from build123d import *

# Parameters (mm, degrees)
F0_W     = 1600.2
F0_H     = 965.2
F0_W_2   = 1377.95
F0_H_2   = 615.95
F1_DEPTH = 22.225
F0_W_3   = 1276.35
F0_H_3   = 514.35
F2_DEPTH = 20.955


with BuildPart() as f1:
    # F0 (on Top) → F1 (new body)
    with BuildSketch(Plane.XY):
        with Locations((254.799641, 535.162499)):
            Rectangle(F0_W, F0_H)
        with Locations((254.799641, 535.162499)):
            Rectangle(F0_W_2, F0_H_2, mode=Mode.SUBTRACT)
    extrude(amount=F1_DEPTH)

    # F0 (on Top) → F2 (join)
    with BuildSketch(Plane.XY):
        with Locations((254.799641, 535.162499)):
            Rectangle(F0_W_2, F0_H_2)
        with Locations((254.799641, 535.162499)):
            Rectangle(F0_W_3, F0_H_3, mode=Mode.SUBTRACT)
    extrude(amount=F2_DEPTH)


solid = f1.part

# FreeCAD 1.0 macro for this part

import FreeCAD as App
import Part
import Sketcher
from FreeCAD import Vector
Q = App.Units.Quantity

doc = App.newDocument("Part")
body = doc.addObject("PartDesign::Body", "Body")

sketch1 = doc.addObject("Sketcher::SketchObject", "Sketch")
body.addObject(sketch1)
sketch1.AttachmentSupport = (doc.XY_Plane, [""])
sketch1.MapMode = "FlatFace"
sketch1.addGeometry(Part.LineSegment(Vector(-545, 1018, 0), Vector(-545, 53, 0)), False)
sketch1.addGeometry(Part.LineSegment(Vector(-545, 53, 0), Vector(1055, 53, 0)), False)
sketch1.addGeometry(Part.LineSegment(Vector(1055, 53, 0), Vector(1055, 1018, 0)), False)
sketch1.addGeometry(Part.LineSegment(Vector(1055, 1018, 0), Vector(-545, 1018, 0)), False)
sketch1.addGeometry(Part.LineSegment(Vector(944, 227, 0), Vector(-434, 227, 0)), False)
sketch1.addGeometry(Part.LineSegment(Vector(-434, 227, 0), Vector(-434, 843, 0)), False)
sketch1.addGeometry(Part.LineSegment(Vector(-434, 843, 0), Vector(944, 843, 0)), False)
sketch1.addGeometry(Part.LineSegment(Vector(944, 843, 0), Vector(944, 227, 0)), False)
sketch1.addConstraint(Sketcher.Constraint("Coincident", 0, 2, 1, 1))
sketch1.addConstraint(Sketcher.Constraint("Coincident", 1, 2, 2, 1))
sketch1.addConstraint(Sketcher.Constraint("Coincident", 2, 2, 3, 1))
sketch1.addConstraint(Sketcher.Constraint("Coincident", 3, 2, 0, 1))
sketch1.addConstraint(Sketcher.Constraint("Coincident", 4, 2, 5, 1))
sketch1.addConstraint(Sketcher.Constraint("Coincident", 5, 2, 6, 1))
sketch1.addConstraint(Sketcher.Constraint("Coincident", 6, 2, 7, 1))
sketch1.addConstraint(Sketcher.Constraint("Coincident", 7, 2, 4, 1))
sketch1.addConstraint(Sketcher.Constraint("Vertical", 0))
sketch1.addConstraint(Sketcher.Constraint("Horizontal", 1))
sketch1.addConstraint(Sketcher.Constraint("Vertical", 2))
sketch1.addConstraint(Sketcher.Constraint("Horizontal", 3))
sketch1.addConstraint(Sketcher.Constraint("Horizontal", 4))
sketch1.addConstraint(Sketcher.Constraint("Vertical", 5))
sketch1.addConstraint(Sketcher.Constraint("Horizontal", 6))
sketch1.addConstraint(Sketcher.Constraint("Vertical", 7))
sketch1.addConstraint(Sketcher.Constraint("DistanceX", 1, 1, 1, 2, Q("63 in")))
sketch1.addConstraint(Sketcher.Constraint("DistanceY", 0, 2, 0, 1, Q("38 in")))
sketch1.addConstraint(Sketcher.Constraint("DistanceX", 4, 2, 4, 1, Q("54.25 in")))
sketch1.addConstraint(Sketcher.Constraint("DistanceY", 5, 1, 5, 2, Q("24.25 in")))
sketch1.addConstraint(Sketcher.Constraint("DistanceX", 0, 2, 4, 2, Q("4.375 in")))
sketch1.addConstraint(Sketcher.Constraint("DistanceY", 0, 2, 4, 2, Q("6.875 in")))
sketch1.addConstraint(Sketcher.Constraint("DistanceY", -1, 1, 0, 2, Q("52.562499 mm")))
sketch1.addConstraint(Sketcher.Constraint("DistanceX", 0, 2, -1, 1, Q("545.300359 mm")))
pad1 = doc.addObject("PartDesign::Pad", "Pad")
body.addObject(pad1)
pad1.Profile = sketch1
pad1.Length = Q("0.875 in")

sketch2 = doc.addObject("Sketcher::SketchObject", "Sketch001")
body.addObject(sketch2)
sketch2.AttachmentSupport = (doc.XY_Plane, [""])
sketch2.MapMode = "FlatFace"
sketch2.addGeometry(Part.LineSegment(Vector(-434, 843, 0), Vector(-434, 227, 0)), False)
sketch2.addGeometry(Part.LineSegment(Vector(-434, 227, 0), Vector(944, 227, 0)), False)
sketch2.addGeometry(Part.LineSegment(Vector(944, 227, 0), Vector(944, 843, 0)), False)
sketch2.addGeometry(Part.LineSegment(Vector(944, 843, 0), Vector(-434, 843, 0)), False)
sketch2.addGeometry(Part.LineSegment(Vector(893, 278, 0), Vector(-383, 278, 0)), False)
sketch2.addGeometry(Part.LineSegment(Vector(-383, 278, 0), Vector(-383, 792, 0)), False)
sketch2.addGeometry(Part.LineSegment(Vector(-383, 792, 0), Vector(893, 792, 0)), False)
sketch2.addGeometry(Part.LineSegment(Vector(893, 792, 0), Vector(893, 278, 0)), False)
sketch2.addConstraint(Sketcher.Constraint("Coincident", 0, 2, 1, 1))
sketch2.addConstraint(Sketcher.Constraint("Coincident", 1, 2, 2, 1))
sketch2.addConstraint(Sketcher.Constraint("Coincident", 2, 2, 3, 1))
sketch2.addConstraint(Sketcher.Constraint("Coincident", 3, 2, 0, 1))
sketch2.addConstraint(Sketcher.Constraint("Coincident", 4, 2, 5, 1))
sketch2.addConstraint(Sketcher.Constraint("Coincident", 5, 2, 6, 1))
sketch2.addConstraint(Sketcher.Constraint("Coincident", 6, 2, 7, 1))
sketch2.addConstraint(Sketcher.Constraint("Coincident", 7, 2, 4, 1))
sketch2.addConstraint(Sketcher.Constraint("Vertical", 0))
sketch2.addConstraint(Sketcher.Constraint("Horizontal", 1))
sketch2.addConstraint(Sketcher.Constraint("Vertical", 2))
sketch2.addConstraint(Sketcher.Constraint("Horizontal", 3))
sketch2.addConstraint(Sketcher.Constraint("Horizontal", 4))
sketch2.addConstraint(Sketcher.Constraint("Vertical", 5))
sketch2.addConstraint(Sketcher.Constraint("Horizontal", 6))
sketch2.addConstraint(Sketcher.Constraint("Vertical", 7))
sketch2.addConstraint(Sketcher.Constraint("DistanceX", 0, 2, 4, 2, Q("2 in")))
sketch2.addConstraint(Sketcher.Constraint("DistanceY", 0, 2, 4, 2, Q("2 in")))
sketch2.addConstraint(Sketcher.Constraint("DistanceY", 5, 2, 3, 2, Q("2 in")))
sketch2.addConstraint(Sketcher.Constraint("DistanceX", 6, 2, 2, 2, Q("2 in")))
sketch2.addConstraint(Sketcher.Constraint("DistanceX", 1, 1, 1, 2, Q("54.25 in")))
sketch2.addConstraint(Sketcher.Constraint("DistanceY", 0, 2, 0, 1, Q("24.25 in")))
sketch2.addConstraint(Sketcher.Constraint("DistanceY", -1, 1, 0, 2, Q("227.187499 mm")))
sketch2.addConstraint(Sketcher.Constraint("DistanceX", 0, 2, -1, 1, Q("434.175359 mm")))
pad2 = doc.addObject("PartDesign::Pad", "Pad001")
body.addObject(pad2)
pad2.Profile = sketch2
pad2.Length = Q("0.825 in")

doc.recompute()
